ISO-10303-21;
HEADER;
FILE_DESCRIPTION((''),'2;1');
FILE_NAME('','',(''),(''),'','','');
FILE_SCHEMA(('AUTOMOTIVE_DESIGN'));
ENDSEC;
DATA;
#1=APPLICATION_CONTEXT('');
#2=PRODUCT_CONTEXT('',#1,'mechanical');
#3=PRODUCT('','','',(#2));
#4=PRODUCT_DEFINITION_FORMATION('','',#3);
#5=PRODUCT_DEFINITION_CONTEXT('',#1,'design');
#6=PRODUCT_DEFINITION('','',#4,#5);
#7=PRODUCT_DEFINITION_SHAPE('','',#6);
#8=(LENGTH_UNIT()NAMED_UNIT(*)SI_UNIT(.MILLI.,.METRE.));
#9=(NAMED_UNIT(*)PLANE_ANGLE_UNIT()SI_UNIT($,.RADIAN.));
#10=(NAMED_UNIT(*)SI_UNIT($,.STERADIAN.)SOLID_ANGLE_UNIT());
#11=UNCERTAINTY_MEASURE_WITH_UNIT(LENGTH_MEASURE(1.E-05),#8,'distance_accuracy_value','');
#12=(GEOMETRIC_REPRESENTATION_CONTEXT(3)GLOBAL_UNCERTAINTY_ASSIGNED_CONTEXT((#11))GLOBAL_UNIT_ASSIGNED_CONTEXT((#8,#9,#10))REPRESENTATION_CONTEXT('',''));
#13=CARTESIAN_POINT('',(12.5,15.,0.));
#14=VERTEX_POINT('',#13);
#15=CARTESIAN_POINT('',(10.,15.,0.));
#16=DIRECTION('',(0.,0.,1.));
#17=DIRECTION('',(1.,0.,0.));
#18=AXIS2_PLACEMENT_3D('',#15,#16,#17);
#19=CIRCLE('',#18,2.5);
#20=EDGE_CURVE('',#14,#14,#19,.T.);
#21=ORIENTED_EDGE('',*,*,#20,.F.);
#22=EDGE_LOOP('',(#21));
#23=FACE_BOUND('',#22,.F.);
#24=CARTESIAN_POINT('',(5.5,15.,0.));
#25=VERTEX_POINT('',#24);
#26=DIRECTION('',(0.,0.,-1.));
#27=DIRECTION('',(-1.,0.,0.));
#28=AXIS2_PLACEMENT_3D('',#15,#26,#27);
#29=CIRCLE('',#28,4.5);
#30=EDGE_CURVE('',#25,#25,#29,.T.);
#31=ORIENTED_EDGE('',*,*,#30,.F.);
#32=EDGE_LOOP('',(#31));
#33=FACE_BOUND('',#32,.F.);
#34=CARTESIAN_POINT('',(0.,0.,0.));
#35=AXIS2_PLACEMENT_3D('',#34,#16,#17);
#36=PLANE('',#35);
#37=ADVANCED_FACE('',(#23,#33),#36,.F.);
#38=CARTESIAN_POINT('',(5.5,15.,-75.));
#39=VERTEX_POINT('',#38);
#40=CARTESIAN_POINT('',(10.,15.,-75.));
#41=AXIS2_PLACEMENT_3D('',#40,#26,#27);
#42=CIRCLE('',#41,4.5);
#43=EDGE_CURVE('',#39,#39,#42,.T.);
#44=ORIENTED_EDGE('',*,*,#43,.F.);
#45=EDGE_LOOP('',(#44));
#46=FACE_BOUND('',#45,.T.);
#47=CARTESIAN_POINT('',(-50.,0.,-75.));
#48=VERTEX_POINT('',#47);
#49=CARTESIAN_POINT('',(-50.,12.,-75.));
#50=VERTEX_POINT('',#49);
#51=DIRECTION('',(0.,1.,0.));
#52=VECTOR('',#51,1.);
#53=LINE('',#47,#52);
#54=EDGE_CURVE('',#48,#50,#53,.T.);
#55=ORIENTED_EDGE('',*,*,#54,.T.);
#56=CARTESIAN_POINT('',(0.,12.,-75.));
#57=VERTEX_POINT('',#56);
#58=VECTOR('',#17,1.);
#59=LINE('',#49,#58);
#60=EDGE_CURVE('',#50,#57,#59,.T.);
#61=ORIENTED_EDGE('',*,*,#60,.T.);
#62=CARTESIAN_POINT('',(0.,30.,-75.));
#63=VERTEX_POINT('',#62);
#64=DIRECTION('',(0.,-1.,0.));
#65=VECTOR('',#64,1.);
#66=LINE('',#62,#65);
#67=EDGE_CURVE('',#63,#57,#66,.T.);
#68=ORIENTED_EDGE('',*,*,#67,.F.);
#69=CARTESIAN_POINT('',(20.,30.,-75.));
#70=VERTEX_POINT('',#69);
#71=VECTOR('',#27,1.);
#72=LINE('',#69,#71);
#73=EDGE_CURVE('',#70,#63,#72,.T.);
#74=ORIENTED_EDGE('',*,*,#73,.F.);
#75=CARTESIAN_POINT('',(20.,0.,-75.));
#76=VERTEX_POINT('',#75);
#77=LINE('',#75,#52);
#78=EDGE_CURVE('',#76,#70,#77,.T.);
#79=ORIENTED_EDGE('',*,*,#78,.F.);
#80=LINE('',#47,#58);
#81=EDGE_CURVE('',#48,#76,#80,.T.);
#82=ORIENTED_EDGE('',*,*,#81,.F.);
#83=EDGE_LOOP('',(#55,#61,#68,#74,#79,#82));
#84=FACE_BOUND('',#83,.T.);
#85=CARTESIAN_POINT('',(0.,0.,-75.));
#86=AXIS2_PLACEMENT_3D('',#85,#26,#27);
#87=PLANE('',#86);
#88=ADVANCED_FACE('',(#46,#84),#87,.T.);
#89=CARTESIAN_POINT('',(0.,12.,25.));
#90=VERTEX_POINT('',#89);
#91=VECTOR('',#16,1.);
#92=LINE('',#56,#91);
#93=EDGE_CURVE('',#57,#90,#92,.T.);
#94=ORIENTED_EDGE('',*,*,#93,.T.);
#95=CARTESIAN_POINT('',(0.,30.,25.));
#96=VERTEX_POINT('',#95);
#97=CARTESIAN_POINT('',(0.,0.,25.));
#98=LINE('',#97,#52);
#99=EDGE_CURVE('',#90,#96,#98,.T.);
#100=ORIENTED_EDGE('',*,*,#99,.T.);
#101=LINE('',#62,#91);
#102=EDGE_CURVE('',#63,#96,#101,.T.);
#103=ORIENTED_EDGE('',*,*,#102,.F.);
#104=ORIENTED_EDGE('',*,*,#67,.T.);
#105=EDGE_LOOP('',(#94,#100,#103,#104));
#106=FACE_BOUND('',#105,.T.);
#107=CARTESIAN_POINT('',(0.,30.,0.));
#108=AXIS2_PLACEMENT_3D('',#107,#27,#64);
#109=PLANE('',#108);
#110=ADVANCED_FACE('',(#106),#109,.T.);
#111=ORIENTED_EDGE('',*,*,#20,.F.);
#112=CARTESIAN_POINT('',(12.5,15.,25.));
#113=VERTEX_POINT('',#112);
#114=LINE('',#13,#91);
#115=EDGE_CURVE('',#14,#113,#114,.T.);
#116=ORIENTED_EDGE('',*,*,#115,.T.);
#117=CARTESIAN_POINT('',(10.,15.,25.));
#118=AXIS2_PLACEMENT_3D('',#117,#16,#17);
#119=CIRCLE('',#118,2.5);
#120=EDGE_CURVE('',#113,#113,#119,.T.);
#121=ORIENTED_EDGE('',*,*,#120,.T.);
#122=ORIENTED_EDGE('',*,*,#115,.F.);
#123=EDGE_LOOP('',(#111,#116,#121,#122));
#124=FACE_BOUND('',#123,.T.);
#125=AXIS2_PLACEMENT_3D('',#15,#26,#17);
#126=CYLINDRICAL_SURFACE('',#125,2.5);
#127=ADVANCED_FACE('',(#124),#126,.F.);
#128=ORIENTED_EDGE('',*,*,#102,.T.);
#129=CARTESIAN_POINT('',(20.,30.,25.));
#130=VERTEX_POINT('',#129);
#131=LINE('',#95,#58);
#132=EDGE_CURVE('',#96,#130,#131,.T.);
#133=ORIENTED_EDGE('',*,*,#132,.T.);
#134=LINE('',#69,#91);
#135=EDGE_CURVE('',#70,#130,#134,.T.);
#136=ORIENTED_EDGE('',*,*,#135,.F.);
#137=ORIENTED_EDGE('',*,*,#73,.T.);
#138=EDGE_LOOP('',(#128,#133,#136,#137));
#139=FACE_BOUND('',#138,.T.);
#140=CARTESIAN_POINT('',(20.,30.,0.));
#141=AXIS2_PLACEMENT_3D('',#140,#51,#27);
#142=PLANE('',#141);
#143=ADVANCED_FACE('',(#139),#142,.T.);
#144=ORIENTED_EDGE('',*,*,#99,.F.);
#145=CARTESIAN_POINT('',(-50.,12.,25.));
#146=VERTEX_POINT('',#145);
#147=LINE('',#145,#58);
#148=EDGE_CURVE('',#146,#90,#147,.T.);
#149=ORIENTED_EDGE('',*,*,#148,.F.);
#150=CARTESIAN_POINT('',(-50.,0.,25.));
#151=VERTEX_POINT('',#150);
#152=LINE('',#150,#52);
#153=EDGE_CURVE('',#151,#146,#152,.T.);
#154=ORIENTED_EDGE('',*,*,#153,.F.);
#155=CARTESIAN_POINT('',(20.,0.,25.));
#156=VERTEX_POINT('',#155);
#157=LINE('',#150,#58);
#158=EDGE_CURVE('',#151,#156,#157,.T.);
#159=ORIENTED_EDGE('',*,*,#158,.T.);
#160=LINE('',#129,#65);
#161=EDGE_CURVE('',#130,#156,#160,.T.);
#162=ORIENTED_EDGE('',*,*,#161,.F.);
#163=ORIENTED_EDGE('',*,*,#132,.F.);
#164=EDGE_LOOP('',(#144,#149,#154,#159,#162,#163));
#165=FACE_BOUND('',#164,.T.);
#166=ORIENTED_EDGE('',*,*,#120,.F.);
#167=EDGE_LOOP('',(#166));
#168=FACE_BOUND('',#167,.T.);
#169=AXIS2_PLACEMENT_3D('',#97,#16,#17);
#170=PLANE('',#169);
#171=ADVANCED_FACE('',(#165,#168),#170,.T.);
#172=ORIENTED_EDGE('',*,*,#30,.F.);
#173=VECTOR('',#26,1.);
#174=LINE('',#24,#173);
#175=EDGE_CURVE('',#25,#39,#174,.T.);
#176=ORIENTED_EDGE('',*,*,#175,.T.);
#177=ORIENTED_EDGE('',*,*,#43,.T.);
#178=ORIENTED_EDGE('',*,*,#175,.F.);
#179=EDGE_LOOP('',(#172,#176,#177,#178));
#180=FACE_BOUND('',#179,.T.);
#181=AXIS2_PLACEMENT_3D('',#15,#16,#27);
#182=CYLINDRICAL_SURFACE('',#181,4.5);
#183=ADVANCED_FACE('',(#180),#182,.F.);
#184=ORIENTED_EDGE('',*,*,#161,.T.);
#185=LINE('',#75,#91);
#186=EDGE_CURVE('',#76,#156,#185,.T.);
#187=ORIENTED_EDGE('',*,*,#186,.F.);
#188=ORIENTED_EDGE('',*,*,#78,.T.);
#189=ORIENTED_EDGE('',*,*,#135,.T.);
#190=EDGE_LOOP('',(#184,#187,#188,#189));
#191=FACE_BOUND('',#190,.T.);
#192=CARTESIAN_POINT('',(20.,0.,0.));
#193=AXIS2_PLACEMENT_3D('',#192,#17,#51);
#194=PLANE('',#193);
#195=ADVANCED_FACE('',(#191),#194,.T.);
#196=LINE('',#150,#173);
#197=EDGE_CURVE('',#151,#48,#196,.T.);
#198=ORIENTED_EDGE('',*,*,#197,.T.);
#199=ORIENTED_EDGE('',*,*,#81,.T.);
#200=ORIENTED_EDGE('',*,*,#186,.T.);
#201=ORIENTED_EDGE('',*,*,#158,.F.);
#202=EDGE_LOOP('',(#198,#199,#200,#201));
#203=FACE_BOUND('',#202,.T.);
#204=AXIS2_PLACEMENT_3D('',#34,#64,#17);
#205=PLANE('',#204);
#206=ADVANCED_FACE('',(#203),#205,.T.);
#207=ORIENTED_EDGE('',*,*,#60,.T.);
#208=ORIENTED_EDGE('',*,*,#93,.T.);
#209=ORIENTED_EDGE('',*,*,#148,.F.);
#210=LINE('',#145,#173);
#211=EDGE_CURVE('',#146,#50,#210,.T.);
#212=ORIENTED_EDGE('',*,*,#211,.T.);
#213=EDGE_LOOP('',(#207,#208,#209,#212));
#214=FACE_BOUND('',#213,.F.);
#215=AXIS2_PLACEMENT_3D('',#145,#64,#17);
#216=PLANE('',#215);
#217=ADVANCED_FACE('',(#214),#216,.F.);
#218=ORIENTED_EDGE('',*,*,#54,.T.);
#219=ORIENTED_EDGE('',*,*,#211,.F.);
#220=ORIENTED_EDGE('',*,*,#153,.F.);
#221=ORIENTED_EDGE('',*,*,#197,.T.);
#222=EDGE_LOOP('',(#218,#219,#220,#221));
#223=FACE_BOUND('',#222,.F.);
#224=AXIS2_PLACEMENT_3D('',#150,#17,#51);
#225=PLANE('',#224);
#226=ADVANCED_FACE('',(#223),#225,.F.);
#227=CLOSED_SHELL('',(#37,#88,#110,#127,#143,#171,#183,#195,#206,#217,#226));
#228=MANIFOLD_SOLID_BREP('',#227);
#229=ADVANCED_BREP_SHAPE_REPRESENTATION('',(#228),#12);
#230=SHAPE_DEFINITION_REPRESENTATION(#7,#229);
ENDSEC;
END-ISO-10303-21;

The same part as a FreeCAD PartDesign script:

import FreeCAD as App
import Part
import Sketcher

V = App.Vector

doc = App.newDocument("Part")
params = doc.addObject("Spreadsheet::Sheet", "Params")
for row, (alias, value) in enumerate([
    ("sketch1_diameter", "5 mm"),
    ("sketch1_width", "20 mm"),
    ("sketch1_height", "30 mm"),
    ("pad1_length", "25 mm"),
    ("sketch2_width", "50 mm"),
    ("sketch2_height", "12 mm"),
    ("pad2_length", "100 mm"),
    ("sketch3_diameter", "9 mm"),
    ("sketch3_width", "20 mm"),
    ("sketch3_height", "30 mm"),
    ("pad3_length", "75 mm"),
], start=1):
    params.set(f"A{row}", alias)
    params.set(f"B{row}", "=" + value)
    params.setAlias(f"B{row}", alias)

body = doc.addObject("PartDesign::Body", "Body")

# Sketch on XY plane
sketch1 = doc.addObject("Sketcher::SketchObject", "Sketch")
body.addObject(sketch1)
sketch1.AttachmentSupport = (doc.XY_Plane, [""])
sketch1.MapMode = "FlatFace"
sketch1.addGeometry(Part.LineSegment(V(20, 30, 0), V(0, 30, 0)), False)
sketch1.addGeometry(Part.LineSegment(V(0, 30, 0), V(0, 0, 0)), False)
sketch1.addGeometry(Part.LineSegment(V(0, 0, 0), V(20, 0, 0)), False)
sketch1.addGeometry(Part.LineSegment(V(20, 0, 0), V(20, 30, 0)), False)
sketch1.addGeometry(Part.Circle(V(10, 15, 0), V(0, 0, 1), 2.5), False)
sketch1.addConstraint(Sketcher.Constraint("Coincident", 0, 2, 1, 1))
sketch1.addConstraint(Sketcher.Constraint("Coincident", 1, 2, 2, 1))
sketch1.addConstraint(Sketcher.Constraint("Coincident", 2, 2, 3, 1))
sketch1.addConstraint(Sketcher.Constraint("Coincident", 3, 2, 0, 1))
sketch1.addConstraint(Sketcher.Constraint("Horizontal", 0))
sketch1.addConstraint(Sketcher.Constraint("Vertical", 1))
sketch1.addConstraint(Sketcher.Constraint("Horizontal", 2))
sketch1.addConstraint(Sketcher.Constraint("Vertical", 3))
sketch1.addConstraint(Sketcher.Constraint("Coincident", 1, 2, -1, 1))
sketch1.addConstraint(Sketcher.Constraint("Diameter", 4, 5.0))
sketch1.addConstraint(Sketcher.Constraint("DistanceX", 0, 2, 0, 1, 20.0))
sketch1.addConstraint(Sketcher.Constraint("DistanceY", 1, 2, 1, 1, 30.0))
sketch1.addConstraint(Sketcher.Constraint("DistanceX", -1, 1, 4, 3, 10.0))
sketch1.addConstraint(Sketcher.Constraint("DistanceY", -1, 1, 4, 3, 15.0))
sketch1.setExpression("Constraints[9]", "Params.sketch1_diameter")
sketch1.setExpression("Constraints[10]", "Params.sketch1_width")
sketch1.setExpression("Constraints[11]", "Params.sketch1_height")
pad1 = doc.addObject("PartDesign::Pad", "Pad")
body.addObject(pad1)
pad1.Profile = sketch1
pad1.setExpression("Length", "Params.pad1_length")

# Sketch on XY plane
sketch2 = doc.addObject("Sketcher::SketchObject", "Sketch001")
body.addObject(sketch2)
sketch2.AttachmentSupport = (doc.XY_Plane, [""])
sketch2.MapMode = "FlatFace"
sketch2.AttachmentOffset = App.Placement(V(0, 0, 25), App.Rotation())
sketch2.addGeometry(Part.LineSegment(V(-50, 0, 0), V(0, 0, 0)), False)
sketch2.addGeometry(Part.LineSegment(V(0, 0, 0), V(0, 12, 0)), False)
sketch2.addGeometry(Part.LineSegment(V(0, 12, 0), V(-50, 12, 0)), False)
sketch2.addGeometry(Part.LineSegment(V(-50, 12, 0), V(-50, 0, 0)), False)
sketch2.addConstraint(Sketcher.Constraint("Coincident", 0, 2, 1, 1))
sketch2.addConstraint(Sketcher.Constraint("Coincident", 1, 2, 2, 1))
sketch2.addConstraint(Sketcher.Constraint("Coincident", 2, 2, 3, 1))
sketch2.addConstraint(Sketcher.Constraint("Coincident", 3, 2, 0, 1))
sketch2.addConstraint(Sketcher.Constraint("Horizontal", 0))
sketch2.addConstraint(Sketcher.Constraint("Vertical", 1))
sketch2.addConstraint(Sketcher.Constraint("Horizontal", 2))
sketch2.addConstraint(Sketcher.Constraint("Vertical", 3))
sketch2.addConstraint(Sketcher.Constraint("Coincident", 0, 2, -1, 1))
sketch2.addConstraint(Sketcher.Constraint("DistanceX", 0, 1, 0, 2, 50.0))
sketch2.addConstraint(Sketcher.Constraint("DistanceY", 1, 1, 1, 2, 12.0))
sketch2.setExpression("Constraints[9]", "Params.sketch2_width")
sketch2.setExpression("Constraints[10]", "Params.sketch2_height")
pad2 = doc.addObject("PartDesign::Pad", "Pad001")
body.addObject(pad2)
pad2.Profile = sketch2
pad2.setExpression("Length", "Params.pad2_length")
pad2.Reversed = True

# Sketch on XY plane
sketch3 = doc.addObject("Sketcher::SketchObject", "Sketch002")
body.addObject(sketch3)
sketch3.AttachmentSupport = (doc.XY_Plane, [""])
sketch3.MapMode = "FlatFace"
sketch3.addGeometry(Part.LineSegment(V(20, 0, 0), V(0, 0, 0)), False)
sketch3.addGeometry(Part.LineSegment(V(0, 0, 0), V(0, 30, 0)), False)
sketch3.addGeometry(Part.LineSegment(V(0, 30, 0), V(20, 30, 0)), False)
sketch3.addGeometry(Part.LineSegment(V(20, 30, 0), V(20, 0, 0)), False)
sketch3.addGeometry(Part.Circle(V(10, 15, 0), V(0, 0, 1), 4.5), False)
sketch3.addConstraint(Sketcher.Constraint("Coincident", 0, 2, 1, 1))
sketch3.addConstraint(Sketcher.Constraint("Coincident", 1, 2, 2, 1))
sketch3.addConstraint(Sketcher.Constraint("Coincident", 2, 2, 3, 1))
sketch3.addConstraint(Sketcher.Constraint("Coincident", 3, 2, 0, 1))
sketch3.addConstraint(Sketcher.Constraint("Horizontal", 0))
sketch3.addConstraint(Sketcher.Constraint("Vertical", 1))
sketch3.addConstraint(Sketcher.Constraint("Horizontal", 2))
sketch3.addConstraint(Sketcher.Constraint("Vertical", 3))
sketch3.addConstraint(Sketcher.Constraint("Coincident", 0, 2, -1, 1))
sketch3.addConstraint(Sketcher.Constraint("Diameter", 4, 9.0))
sketch3.addConstraint(Sketcher.Constraint("DistanceX", 0, 2, 0, 1, 20.0))
sketch3.addConstraint(Sketcher.Constraint("DistanceY", 1, 1, 1, 2, 30.0))
sketch3.addConstraint(Sketcher.Constraint("DistanceX", -1, 1, 4, 3, 10.0))
sketch3.addConstraint(Sketcher.Constraint("DistanceY", -1, 1, 4, 3, 15.0))
sketch3.setExpression("Constraints[9]", "Params.sketch3_diameter")
sketch3.setExpression("Constraints[10]", "Params.sketch3_width")
sketch3.setExpression("Constraints[11]", "Params.sketch3_height")
pad3 = doc.addObject("PartDesign::Pad", "Pad002")
body.addObject(pad3)
pad3.Profile = sketch3
pad3.setExpression("Length", "Params.pad3_length")
pad3.Reversed = True

doc.recompute()
